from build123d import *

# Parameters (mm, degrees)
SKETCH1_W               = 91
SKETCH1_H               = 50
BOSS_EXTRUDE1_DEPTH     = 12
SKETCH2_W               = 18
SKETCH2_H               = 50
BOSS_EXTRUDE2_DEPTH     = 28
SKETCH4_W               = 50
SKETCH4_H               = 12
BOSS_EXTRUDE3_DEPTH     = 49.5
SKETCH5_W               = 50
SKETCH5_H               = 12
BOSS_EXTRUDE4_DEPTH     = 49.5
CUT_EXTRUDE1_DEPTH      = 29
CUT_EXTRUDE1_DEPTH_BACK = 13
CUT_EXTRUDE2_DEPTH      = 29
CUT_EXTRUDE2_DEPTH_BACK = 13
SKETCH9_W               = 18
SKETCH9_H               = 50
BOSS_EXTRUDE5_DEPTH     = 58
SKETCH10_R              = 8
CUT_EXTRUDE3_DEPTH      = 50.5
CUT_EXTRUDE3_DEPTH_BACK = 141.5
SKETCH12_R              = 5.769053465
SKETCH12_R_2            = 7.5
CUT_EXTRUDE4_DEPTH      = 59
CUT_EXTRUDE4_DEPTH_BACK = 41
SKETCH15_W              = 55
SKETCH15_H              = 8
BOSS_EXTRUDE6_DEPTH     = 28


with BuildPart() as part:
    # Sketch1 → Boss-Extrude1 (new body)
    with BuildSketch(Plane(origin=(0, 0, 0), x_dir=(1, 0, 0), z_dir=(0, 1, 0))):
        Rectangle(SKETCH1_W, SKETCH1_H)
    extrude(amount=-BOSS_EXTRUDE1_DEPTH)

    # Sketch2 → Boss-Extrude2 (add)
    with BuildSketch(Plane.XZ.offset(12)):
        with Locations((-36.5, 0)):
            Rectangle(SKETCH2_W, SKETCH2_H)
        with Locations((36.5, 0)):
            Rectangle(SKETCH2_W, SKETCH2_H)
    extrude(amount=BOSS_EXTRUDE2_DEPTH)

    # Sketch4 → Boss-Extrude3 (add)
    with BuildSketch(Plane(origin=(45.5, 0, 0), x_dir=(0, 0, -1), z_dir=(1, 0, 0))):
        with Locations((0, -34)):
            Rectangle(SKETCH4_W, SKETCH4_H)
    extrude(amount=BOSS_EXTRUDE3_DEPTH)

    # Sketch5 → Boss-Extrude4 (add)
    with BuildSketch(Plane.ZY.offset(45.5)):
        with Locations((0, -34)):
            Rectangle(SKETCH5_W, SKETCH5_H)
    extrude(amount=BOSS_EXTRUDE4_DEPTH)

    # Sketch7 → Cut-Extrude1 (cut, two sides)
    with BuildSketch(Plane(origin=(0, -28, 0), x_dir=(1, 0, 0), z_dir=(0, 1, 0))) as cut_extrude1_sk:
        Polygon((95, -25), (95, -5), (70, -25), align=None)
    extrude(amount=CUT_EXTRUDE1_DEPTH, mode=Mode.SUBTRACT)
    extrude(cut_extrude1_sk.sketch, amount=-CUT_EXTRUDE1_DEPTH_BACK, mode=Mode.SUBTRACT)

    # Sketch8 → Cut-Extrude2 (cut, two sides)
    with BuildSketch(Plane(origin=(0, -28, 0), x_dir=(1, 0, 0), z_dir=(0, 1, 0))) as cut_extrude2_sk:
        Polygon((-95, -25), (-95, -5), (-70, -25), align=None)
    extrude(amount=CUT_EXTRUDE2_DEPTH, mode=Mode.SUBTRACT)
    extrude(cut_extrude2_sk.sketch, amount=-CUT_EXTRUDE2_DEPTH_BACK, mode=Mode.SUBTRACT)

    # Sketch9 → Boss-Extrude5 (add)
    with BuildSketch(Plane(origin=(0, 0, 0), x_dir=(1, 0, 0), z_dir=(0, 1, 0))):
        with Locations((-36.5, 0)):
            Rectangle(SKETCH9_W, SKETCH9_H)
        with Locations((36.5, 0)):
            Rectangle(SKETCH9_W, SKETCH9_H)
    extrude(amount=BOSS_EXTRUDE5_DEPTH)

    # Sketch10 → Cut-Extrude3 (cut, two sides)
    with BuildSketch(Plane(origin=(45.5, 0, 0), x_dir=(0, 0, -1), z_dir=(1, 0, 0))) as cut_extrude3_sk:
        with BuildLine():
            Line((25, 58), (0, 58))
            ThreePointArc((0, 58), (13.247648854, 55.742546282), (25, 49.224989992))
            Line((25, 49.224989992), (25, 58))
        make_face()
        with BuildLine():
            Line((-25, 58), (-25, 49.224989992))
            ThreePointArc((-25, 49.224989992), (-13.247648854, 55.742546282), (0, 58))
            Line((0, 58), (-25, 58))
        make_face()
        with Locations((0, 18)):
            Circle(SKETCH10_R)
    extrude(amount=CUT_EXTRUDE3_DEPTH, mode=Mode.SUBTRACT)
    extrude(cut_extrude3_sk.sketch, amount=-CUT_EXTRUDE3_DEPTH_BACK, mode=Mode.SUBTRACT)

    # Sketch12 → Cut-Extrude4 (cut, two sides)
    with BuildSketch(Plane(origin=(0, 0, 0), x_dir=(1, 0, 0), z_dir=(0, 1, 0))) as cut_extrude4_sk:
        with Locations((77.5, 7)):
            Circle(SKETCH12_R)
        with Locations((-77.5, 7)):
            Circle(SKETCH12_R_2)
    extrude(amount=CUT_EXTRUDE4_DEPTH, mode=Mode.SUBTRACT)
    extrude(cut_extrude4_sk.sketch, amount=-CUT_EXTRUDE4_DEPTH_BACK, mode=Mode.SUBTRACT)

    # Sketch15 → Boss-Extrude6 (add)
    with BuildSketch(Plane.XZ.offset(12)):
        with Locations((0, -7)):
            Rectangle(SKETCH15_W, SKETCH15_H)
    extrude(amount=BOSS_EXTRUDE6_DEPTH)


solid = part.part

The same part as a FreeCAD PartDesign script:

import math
import FreeCAD as App
import Part
import Sketcher

doc = App.newDocument("Part")
body = doc.addObject("PartDesign::Body", "Body")

sketch1 = doc.addObject("Sketcher::SketchObject", "Sketch")
body.addObject(sketch1)
sketch1.AttachmentSupport = (doc.XZ_Plane, [""])
sketch1.MapMode = "FlatFace"
sketch1.addGeometry([
    Part.LineSegment(App.Vector(-45.5, -25, 0), App.Vector(-45.5, 25, 0)),
    Part.LineSegment(App.Vector(-45.5, 25, 0), App.Vector(45.5, 25, 0)),
    Part.LineSegment(App.Vector(45.5, 25, 0), App.Vector(45.5, -25, 0)),
    Part.LineSegment(App.Vector(45.5, -25, 0), App.Vector(-45.5, -25, 0)),
], False)
sketch1.addConstraint([
    Sketcher.Constraint("Coincident", 0, 2, 1, 1),
    Sketcher.Constraint("Coincident", 1, 2, 2, 1),
    Sketcher.Constraint("Coincident", 2, 2, 3, 1),
    Sketcher.Constraint("Coincident", 3, 2, 0, 1),
    Sketcher.Constraint("Vertical", 0),
    Sketcher.Constraint("Horizontal", 1),
    Sketcher.Constraint("Vertical", 2),
    Sketcher.Constraint("Horizontal", 3),
    Sketcher.Constraint("Symmetric", 0, 2, 2, 2, -1, 1),
    Sketcher.Constraint("DistanceX", 1, 1, 1, 2, 91.0),
    Sketcher.Constraint("DistanceY", 0, 1, 0, 2, 50.0),
])
pad1 = doc.addObject("PartDesign::Pad", "Pad")
body.addObject(pad1)
pad1.Profile = sketch1
pad1.Length = 12

sketch2 = doc.addObject("Sketcher::SketchObject", "Sketch001")
body.addObject(sketch2)
sketch2.AttachmentSupport = (doc.XZ_Plane, [""])
sketch2.MapMode = "FlatFace"
sketch2.AttachmentOffset = App.Placement(App.Vector(0, 0, 12), App.Rotation())
sketch2.addGeometry([
    Part.LineSegment(App.Vector(-45.5, 25, 0), App.Vector(-45.5, -25, 0)),
    Part.LineSegment(App.Vector(-45.5, -25, 0), App.Vector(-27.5, -25, 0)),
    Part.LineSegment(App.Vector(-27.5, -25, 0), App.Vector(-27.5, 25, 0)),
    Part.LineSegment(App.Vector(-27.5, 25, 0), App.Vector(-45.5, 25, 0)),
    Part.LineSegment(App.Vector(27.5, 25, 0), App.Vector(27.5, -25, 0)),
    Part.LineSegment(App.Vector(27.5, -25, 0), App.Vector(45.5, -25, 0)),
    Part.LineSegment(App.Vector(45.5, -25, 0), App.Vector(45.5, 25, 0)),
    Part.LineSegment(App.Vector(45.5, 25, 0), App.Vector(27.5, 25, 0)),
], False)
sketch2.addConstraint([
    Sketcher.Constraint("Coincident", 0, 2, 1, 1),
    Sketcher.Constraint("Coincident", 1, 2, 2, 1),
    Sketcher.Constraint("Coincident", 2, 2, 3, 1),
    Sketcher.Constraint("Coincident", 3, 2, 0, 1),
    Sketcher.Constraint("Coincident", 4, 2, 5, 1),
    Sketcher.Constraint("Coincident", 5, 2, 6, 1),
    Sketcher.Constraint("Coincident", 6, 2, 7, 1),
    Sketcher.Constraint("Coincident", 7, 2, 4, 1),
    Sketcher.Constraint("Vertical", 0),
    Sketcher.Constraint("Horizontal", 1),
    Sketcher.Constraint("Vertical", 2),
    Sketcher.Constraint("Horizontal", 3),
    Sketcher.Constraint("Vertical", 4),
    Sketcher.Constraint("Horizontal", 5),
    Sketcher.Constraint("Vertical", 6),
    Sketcher.Constraint("Horizontal", 7),
    Sketcher.Constraint("Symmetric", 2, 2, 4, 2, -1, 1),
    Sketcher.Constraint("Symmetric", 0, 2, 6, 2, -1, 1),
    Sketcher.Constraint("Horizontal", 1, 2, 4, 2),
    Sketcher.Constraint("DistanceX", 1, 1, 1, 2, 18.0),
    Sketcher.Constraint("DistanceY", 0, 2, 0, 1, 50.0),
    Sketcher.Constraint("DistanceX", 1, 2, 4, 2, 55.0),
])
pad2 = doc.addObject("PartDesign::Pad", "Pad001")
body.addObject(pad2)
pad2.Profile = sketch2
pad2.Length = 28

sketch3 = doc.addObject("Sketcher::SketchObject", "Sketch002")
body.addObject(sketch3)
sketch3.AttachmentSupport = (doc.YZ_Plane, [""])
sketch3.MapMode = "FlatFace"
sketch3.AttachmentOffset = App.Placement(App.Vector(0, 0, 45.5), App.Rotation())
sketch3.addGeometry([
    Part.LineSegment(App.Vector(-28, 25, 0), App.Vector(-40, 25, 0)),
    Part.LineSegment(App.Vector(-40, 25, 0), App.Vector(-40, -25, 0)),
    Part.LineSegment(App.Vector(-40, -25, 0), App.Vector(-28, -25, 0)),
    Part.LineSegment(App.Vector(-28, -25, 0), App.Vector(-28, 25, 0)),
], False)
sketch3.addConstraint([
    Sketcher.Constraint("Coincident", 0, 2, 1, 1),
    Sketcher.Constraint("Coincident", 1, 2, 2, 1),
    Sketcher.Constraint("Coincident", 2, 2, 3, 1),
    Sketcher.Constraint("Coincident", 3, 2, 0, 1),
    Sketcher.Constraint("Horizontal", 0),
    Sketcher.Constraint("Vertical", 1),
    Sketcher.Constraint("Horizontal", 2),
    Sketcher.Constraint("Vertical", 3),
    Sketcher.Constraint("DistanceX", 0, 2, 0, 1, 12.0),
    Sketcher.Constraint("DistanceY", 1, 2, 1, 1, 50.0),
    Sketcher.Constraint("DistanceX", 0, 2, -1, 1, 40.0),
    Sketcher.Constraint("DistanceY", -1, 1, 0, 2, 25.0),
])
pad3 = doc.addObject("PartDesign::Pad", "Pad002")
body.addObject(pad3)
pad3.Profile = sketch3
pad3.Length = 49.5

sketch4 = doc.addObject("Sketcher::SketchObject", "Sketch003")
body.addObject(sketch4)
sketch4.AttachmentSupport = (doc.YZ_Plane, [""])
sketch4.MapMode = "FlatFace"
sketch4.AttachmentOffset = App.Placement(App.Vector(0, 0, -45.5), App.Rotation())
sketch4.addGeometry([
    Part.LineSegment(App.Vector(-28, -25, 0), App.Vector(-40, -25, 0)),
    Part.LineSegment(App.Vector(-40, -25, 0), App.Vector(-40, 25, 0)),
    Part.LineSegment(App.Vector(-40, 25, 0), App.Vector(-28, 25, 0)),
    Part.LineSegment(App.Vector(-28, 25, 0), App.Vector(-28, -25, 0)),
], False)
sketch4.addConstraint([
    Sketcher.Constraint("Coincident", 0, 2, 1, 1),
    Sketcher.Constraint("Coincident", 1, 2, 2, 1),
    Sketcher.Constraint("Coincident", 2, 2, 3, 1),
    Sketcher.Constraint("Coincident", 3, 2, 0, 1),
    Sketcher.Constraint("Horizontal", 0),
    Sketcher.Constraint("Vertical", 1),
    Sketcher.Constraint("Horizontal", 2),
    Sketcher.Constraint("Vertical", 3),
    Sketcher.Constraint("DistanceX", 0, 2, 0, 1, 12.0),
    Sketcher.Constraint("DistanceY", 1, 1, 1, 2, 50.0),
    Sketcher.Constraint("DistanceX", 0, 2, -1, 1, 40.0),
    Sketcher.Constraint("DistanceY", 0, 2, -1, 1, 25.0),
])
pad4 = doc.addObject("PartDesign::Pad", "Pad003")
body.addObject(pad4)
pad4.Profile = sketch4
pad4.Length = 49.5
pad4.Reversed = True

sketch5 = doc.addObject("Sketcher::SketchObject", "Sketch004")
body.addObject(sketch5)
sketch5.AttachmentSupport = (doc.XZ_Plane, [""])
sketch5.MapMode = "FlatFace"
sketch5.AttachmentOffset = App.Placement(App.Vector(0, 0, 28), App.Rotation())
sketch5.addGeometry([
    Part.LineSegment(App.Vector(95, 25, 0), App.Vector(95, 5, 0)),
    Part.LineSegment(App.Vector(95, 5, 0), App.Vector(70, 25, 0)),
    Part.LineSegment(App.Vector(70, 25, 0), App.Vector(95, 25, 0)),
], False)
sketch5.addConstraint([
    Sketcher.Constraint("Coincident", 0, 2, 1, 1),
    Sketcher.Constraint("Coincident", 1, 2, 2, 1),
    Sketcher.Constraint("Coincident", 2, 2, 0, 1),
    Sketcher.Constraint("Vertical", 0),
    Sketcher.Constraint("Horizontal", 2),
    Sketcher.Constraint("DistanceX", 2, 1, 2, 2, 25.0),
    Sketcher.Constraint("DistanceY", 0, 2, 0, 1, 20.0),
    Sketcher.Constraint("DistanceX", -1, 1, 0, 2, 95.0),
    Sketcher.Constraint("DistanceY", -1, 1, 0, 2, 5.0),
])
pocket1 = doc.addObject("PartDesign::Pocket", "Pocket")
body.addObject(pocket1)
pocket1.Profile = sketch5
pocket1.Type = "ThroughAll"
pocket1.Midplane = True

sketch6 = doc.addObject("Sketcher::SketchObject", "Sketch005")
body.addObject(sketch6)
sketch6.AttachmentSupport = (doc.XZ_Plane, [""])
sketch6.MapMode = "FlatFace"
sketch6.AttachmentOffset = App.Placement(App.Vector(0, 0, 28), App.Rotation())
sketch6.addGeometry([
    Part.LineSegment(App.Vector(-95, 5, 0), App.Vector(-95, 25, 0)),
    Part.LineSegment(App.Vector(-95, 25, 0), App.Vector(-70, 25, 0)),
    Part.LineSegment(App.Vector(-70, 25, 0), App.Vector(-95, 5, 0)),
], False)
sketch6.addConstraint([
    Sketcher.Constraint("Coincident", 0, 2, 1, 1),
    Sketcher.Constraint("Coincident", 1, 2, 2, 1),
    Sketcher.Constraint("Coincident", 2, 2, 0, 1),
    Sketcher.Constraint("Vertical", 0),
    Sketcher.Constraint("Horizontal", 1),
    Sketcher.Constraint("DistanceX", 1, 1, 1, 2, 25.0),
    Sketcher.Constraint("DistanceY", 0, 1, 0, 2, 20.0),
    Sketcher.Constraint("DistanceX", 0, 2, -1, 1, 95.0),
    Sketcher.Constraint("DistanceY", -1, 1, 0, 2, 25.0),
])
pocket2 = doc.addObject("PartDesign::Pocket", "Pocket001")
body.addObject(pocket2)
pocket2.Profile = sketch6
pocket2.Type = "ThroughAll"
pocket2.Midplane = True

sketch7 = doc.addObject("Sketcher::SketchObject", "Sketch006")
body.addObject(sketch7)
sketch7.AttachmentSupport = (doc.XZ_Plane, [""])
sketch7.MapMode = "FlatFace"
sketch7.addGeometry([
    Part.LineSegment(App.Vector(-45.5, -25, 0), App.Vector(-45.5, 25, 0)),
    Part.LineSegment(App.Vector(-45.5, 25, 0), App.Vector(-27.5, 25, 0)),
    Part.LineSegment(App.Vector(-27.5, 25, 0), App.Vector(-27.5, -25, 0)),
    Part.LineSegment(App.Vector(-27.5, -25, 0), App.Vector(-45.5, -25, 0)),
    Part.LineSegment(App.Vector(27.5, -25, 0), App.Vector(27.5, 25, 0)),
    Part.LineSegment(App.Vector(27.5, 25, 0), App.Vector(45.5, 25, 0)),
    Part.LineSegment(App.Vector(45.5, 25, 0), App.Vector(45.5, -25, 0)),
    Part.LineSegment(App.Vector(45.5, -25, 0), App.Vector(27.5, -25, 0)),
], False)
sketch7.addConstraint([
    Sketcher.Constraint("Coincident", 0, 2, 1, 1),
    Sketcher.Constraint("Coincident", 1, 2, 2, 1),
    Sketcher.Constraint("Coincident", 2, 2, 3, 1),
    Sketcher.Constraint("Coincident", 3, 2, 0, 1),
    Sketcher.Constraint("Coincident", 4, 2, 5, 1),
    Sketcher.Constraint("Coincident", 5, 2, 6, 1),
    Sketcher.Constraint("Coincident", 6, 2, 7, 1),
    Sketcher.Constraint("Coincident", 7, 2, 4, 1),
    Sketcher.Constraint("Vertical", 0),
    Sketcher.Constraint("Horizontal", 1),
    Sketcher.Constraint("Vertical", 2),
    Sketcher.Constraint("Horizontal", 3),
    Sketcher.Constraint("Vertical", 4),
    Sketcher.Constraint("Horizontal", 5),
    Sketcher.Constraint("Vertical", 6),
    Sketcher.Constraint("Horizontal", 7),
    Sketcher.Constraint("Symmetric", 2, 2, 4, 2, -1, 1),
    Sketcher.Constraint("Symmetric", 0, 2, 6, 2, -1, 1),
    Sketcher.Constraint("Horizontal", 1, 2, 4, 2),
    Sketcher.Constraint("DistanceX", 1, 1, 1, 2, 18.0),
    Sketcher.Constraint("DistanceY", 0, 1, 0, 2, 50.0),
    Sketcher.Constraint("DistanceX", 1, 2, 4, 2, 55.0),
])
pad5 = doc.addObject("PartDesign::Pad", "Pad004")
body.addObject(pad5)
pad5.Profile = sketch7
pad5.Length = 58
pad5.Reversed = True

sketch8 = doc.addObject("Sketcher::SketchObject", "Sketch007")
body.addObject(sketch8)
sketch8.AttachmentSupport = (doc.YZ_Plane, [""])
sketch8.MapMode = "FlatFace"
sketch8.AttachmentOffset = App.Placement(App.Vector(0, 0, 45.5), App.Rotation())
sketch8.addGeometry([
    Part.LineSegment(App.Vector(58, -25, 0), App.Vector(58, 0, 0)),
    Part.ArcOfCircle(Part.Circle(App.Vector(18, 0, 0), App.Vector(0, 0, 1), 40), math.radians(-38.682187), math.radians(0)),
    Part.LineSegment(App.Vector(49.22499, -25, 0), App.Vector(58, -25, 0)),
    Part.LineSegment(App.Vector(58, 25, 0), App.Vector(49.22499, 25, 0)),
    Part.ArcOfCircle(Part.Circle(App.Vector(18, 0, 0), App.Vector(0, 0, 1), 40), math.radians(0), math.radians(38.682187)),
    Part.LineSegment(App.Vector(58, 0, 0), App.Vector(58, 25, 0)),
    Part.Circle(App.Vector(18, 0, 0), App.Vector(0, 0, 1), 8),
], False)
sketch8.addConstraint([
    Sketcher.Constraint("Tangent", 0, 2, 1, 2),
    Sketcher.Constraint("Coincident", 1, 1, 2, 1),
    Sketcher.Constraint("Coincident", 2, 2, 0, 1),
    Sketcher.Constraint("Coincident", 3, 2, 4, 2),
    Sketcher.Constraint("Tangent", 4, 1, 5, 1),
    Sketcher.Constraint("Coincident", 5, 2, 3, 1),
    Sketcher.Constraint("Vertical", 0),
    Sketcher.Constraint("Horizontal", 2),
    Sketcher.Constraint("Horizontal", 3),
    Sketcher.Constraint("Vertical", 5),
    Sketcher.Constraint("Coincident", 4, 3, 1, 3),
    Sketcher.Constraint("Coincident", 6, 3, 1, 3),
    Sketcher.Constraint("Equal", 1, 4),
    Sketcher.Constraint("Symmetric", 1, 1, 3, 2, -1),
    Sketcher.Constraint("Diameter", 6, 16.0),
    Sketcher.Constraint("Radius", 1, 40.0),
    Sketcher.Constraint("DistanceY", 0, 1, 0, 2, 25.0),
    Sketcher.Constraint("DistanceX", -1, 1, 1, 3, 18.0),
])
pocket3 = doc.addObject("PartDesign::Pocket", "Pocket002")
body.addObject(pocket3)
pocket3.Profile = sketch8
pocket3.Type = "ThroughAll"
pocket3.Midplane = True

sketch9 = doc.addObject("Sketcher::SketchObject", "Sketch008")
body.addObject(sketch9)
sketch9.AttachmentSupport = (doc.XZ_Plane, [""])
sketch9.MapMode = "FlatFace"
sketch9.addGeometry([
    Part.Circle(App.Vector(77.5, -7, 0), App.Vector(0, 0, 1), 5.769053),
    Part.Circle(App.Vector(-77.5, -7, 0), App.Vector(0, 0, 1), 7.5),
], False)
sketch9.addConstraint([
    Sketcher.Constraint("Symmetric", 0, 3, 1, 3, -2),
    Sketcher.Constraint("Diameter", 1, 15.0),
    Sketcher.Constraint("DistanceY", 0, 3, -1, 1, 7.0),
    Sketcher.Constraint("DistanceX", 1, 3, 0, 3, 155.0),
    Sketcher.Constraint("Diameter", 0, 11.538107),
])
pocket4 = doc.addObject("PartDesign::Pocket", "Pocket003")
body.addObject(pocket4)
pocket4.Profile = sketch9
pocket4.Type = "ThroughAll"
pocket4.Midplane = True

sketch10 = doc.addObject("Sketcher::SketchObject", "Sketch009")
body.addObject(sketch10)
sketch10.AttachmentSupport = (doc.XZ_Plane, [""])
sketch10.MapMode = "FlatFace"
sketch10.AttachmentOffset = App.Placement(App.Vector(0, 0, 12), App.Rotation())
sketch10.addGeometry([
    Part.LineSegment(App.Vector(-27.5, -3, 0), App.Vector(-27.5, -11, 0)),
    Part.LineSegment(App.Vector(-27.5, -11, 0), App.Vector(27.5, -11, 0)),
    Part.LineSegment(App.Vector(27.5, -11, 0), App.Vector(27.5, -3, 0)),
    Part.LineSegment(App.Vector(27.5, -3, 0), App.Vector(-27.5, -3, 0)),
], False)
sketch10.addConstraint([
    Sketcher.Constraint("Coincident", 0, 2, 1, 1),
    Sketcher.Constraint("Coincident", 1, 2, 2, 1),
    Sketcher.Constraint("Coincident", 2, 2, 3, 1),
    Sketcher.Constraint("Coincident", 3, 2, 0, 1),
    Sketcher.Constraint("Vertical", 0),
    Sketcher.Constraint("Horizontal", 1),
    Sketcher.Constraint("Vertical", 2),
    Sketcher.Constraint("Horizontal", 3),
    Sketcher.Constraint("DistanceX", 1, 1, 1, 2, 55.0),
    Sketcher.Constraint("DistanceY", 0, 2, 0, 1, 8.0),
    Sketcher.Constraint("DistanceY", 0, 2, -1, 1, 11.0),
    Sketcher.Constraint("DistanceX", 0, 2, -1, 1, 27.5),
])
pad6 = doc.addObject("PartDesign::Pad", "Pad005")
body.addObject(pad6)
pad6.Profile = sketch10
pad6.Length = 28

doc.recompute()
